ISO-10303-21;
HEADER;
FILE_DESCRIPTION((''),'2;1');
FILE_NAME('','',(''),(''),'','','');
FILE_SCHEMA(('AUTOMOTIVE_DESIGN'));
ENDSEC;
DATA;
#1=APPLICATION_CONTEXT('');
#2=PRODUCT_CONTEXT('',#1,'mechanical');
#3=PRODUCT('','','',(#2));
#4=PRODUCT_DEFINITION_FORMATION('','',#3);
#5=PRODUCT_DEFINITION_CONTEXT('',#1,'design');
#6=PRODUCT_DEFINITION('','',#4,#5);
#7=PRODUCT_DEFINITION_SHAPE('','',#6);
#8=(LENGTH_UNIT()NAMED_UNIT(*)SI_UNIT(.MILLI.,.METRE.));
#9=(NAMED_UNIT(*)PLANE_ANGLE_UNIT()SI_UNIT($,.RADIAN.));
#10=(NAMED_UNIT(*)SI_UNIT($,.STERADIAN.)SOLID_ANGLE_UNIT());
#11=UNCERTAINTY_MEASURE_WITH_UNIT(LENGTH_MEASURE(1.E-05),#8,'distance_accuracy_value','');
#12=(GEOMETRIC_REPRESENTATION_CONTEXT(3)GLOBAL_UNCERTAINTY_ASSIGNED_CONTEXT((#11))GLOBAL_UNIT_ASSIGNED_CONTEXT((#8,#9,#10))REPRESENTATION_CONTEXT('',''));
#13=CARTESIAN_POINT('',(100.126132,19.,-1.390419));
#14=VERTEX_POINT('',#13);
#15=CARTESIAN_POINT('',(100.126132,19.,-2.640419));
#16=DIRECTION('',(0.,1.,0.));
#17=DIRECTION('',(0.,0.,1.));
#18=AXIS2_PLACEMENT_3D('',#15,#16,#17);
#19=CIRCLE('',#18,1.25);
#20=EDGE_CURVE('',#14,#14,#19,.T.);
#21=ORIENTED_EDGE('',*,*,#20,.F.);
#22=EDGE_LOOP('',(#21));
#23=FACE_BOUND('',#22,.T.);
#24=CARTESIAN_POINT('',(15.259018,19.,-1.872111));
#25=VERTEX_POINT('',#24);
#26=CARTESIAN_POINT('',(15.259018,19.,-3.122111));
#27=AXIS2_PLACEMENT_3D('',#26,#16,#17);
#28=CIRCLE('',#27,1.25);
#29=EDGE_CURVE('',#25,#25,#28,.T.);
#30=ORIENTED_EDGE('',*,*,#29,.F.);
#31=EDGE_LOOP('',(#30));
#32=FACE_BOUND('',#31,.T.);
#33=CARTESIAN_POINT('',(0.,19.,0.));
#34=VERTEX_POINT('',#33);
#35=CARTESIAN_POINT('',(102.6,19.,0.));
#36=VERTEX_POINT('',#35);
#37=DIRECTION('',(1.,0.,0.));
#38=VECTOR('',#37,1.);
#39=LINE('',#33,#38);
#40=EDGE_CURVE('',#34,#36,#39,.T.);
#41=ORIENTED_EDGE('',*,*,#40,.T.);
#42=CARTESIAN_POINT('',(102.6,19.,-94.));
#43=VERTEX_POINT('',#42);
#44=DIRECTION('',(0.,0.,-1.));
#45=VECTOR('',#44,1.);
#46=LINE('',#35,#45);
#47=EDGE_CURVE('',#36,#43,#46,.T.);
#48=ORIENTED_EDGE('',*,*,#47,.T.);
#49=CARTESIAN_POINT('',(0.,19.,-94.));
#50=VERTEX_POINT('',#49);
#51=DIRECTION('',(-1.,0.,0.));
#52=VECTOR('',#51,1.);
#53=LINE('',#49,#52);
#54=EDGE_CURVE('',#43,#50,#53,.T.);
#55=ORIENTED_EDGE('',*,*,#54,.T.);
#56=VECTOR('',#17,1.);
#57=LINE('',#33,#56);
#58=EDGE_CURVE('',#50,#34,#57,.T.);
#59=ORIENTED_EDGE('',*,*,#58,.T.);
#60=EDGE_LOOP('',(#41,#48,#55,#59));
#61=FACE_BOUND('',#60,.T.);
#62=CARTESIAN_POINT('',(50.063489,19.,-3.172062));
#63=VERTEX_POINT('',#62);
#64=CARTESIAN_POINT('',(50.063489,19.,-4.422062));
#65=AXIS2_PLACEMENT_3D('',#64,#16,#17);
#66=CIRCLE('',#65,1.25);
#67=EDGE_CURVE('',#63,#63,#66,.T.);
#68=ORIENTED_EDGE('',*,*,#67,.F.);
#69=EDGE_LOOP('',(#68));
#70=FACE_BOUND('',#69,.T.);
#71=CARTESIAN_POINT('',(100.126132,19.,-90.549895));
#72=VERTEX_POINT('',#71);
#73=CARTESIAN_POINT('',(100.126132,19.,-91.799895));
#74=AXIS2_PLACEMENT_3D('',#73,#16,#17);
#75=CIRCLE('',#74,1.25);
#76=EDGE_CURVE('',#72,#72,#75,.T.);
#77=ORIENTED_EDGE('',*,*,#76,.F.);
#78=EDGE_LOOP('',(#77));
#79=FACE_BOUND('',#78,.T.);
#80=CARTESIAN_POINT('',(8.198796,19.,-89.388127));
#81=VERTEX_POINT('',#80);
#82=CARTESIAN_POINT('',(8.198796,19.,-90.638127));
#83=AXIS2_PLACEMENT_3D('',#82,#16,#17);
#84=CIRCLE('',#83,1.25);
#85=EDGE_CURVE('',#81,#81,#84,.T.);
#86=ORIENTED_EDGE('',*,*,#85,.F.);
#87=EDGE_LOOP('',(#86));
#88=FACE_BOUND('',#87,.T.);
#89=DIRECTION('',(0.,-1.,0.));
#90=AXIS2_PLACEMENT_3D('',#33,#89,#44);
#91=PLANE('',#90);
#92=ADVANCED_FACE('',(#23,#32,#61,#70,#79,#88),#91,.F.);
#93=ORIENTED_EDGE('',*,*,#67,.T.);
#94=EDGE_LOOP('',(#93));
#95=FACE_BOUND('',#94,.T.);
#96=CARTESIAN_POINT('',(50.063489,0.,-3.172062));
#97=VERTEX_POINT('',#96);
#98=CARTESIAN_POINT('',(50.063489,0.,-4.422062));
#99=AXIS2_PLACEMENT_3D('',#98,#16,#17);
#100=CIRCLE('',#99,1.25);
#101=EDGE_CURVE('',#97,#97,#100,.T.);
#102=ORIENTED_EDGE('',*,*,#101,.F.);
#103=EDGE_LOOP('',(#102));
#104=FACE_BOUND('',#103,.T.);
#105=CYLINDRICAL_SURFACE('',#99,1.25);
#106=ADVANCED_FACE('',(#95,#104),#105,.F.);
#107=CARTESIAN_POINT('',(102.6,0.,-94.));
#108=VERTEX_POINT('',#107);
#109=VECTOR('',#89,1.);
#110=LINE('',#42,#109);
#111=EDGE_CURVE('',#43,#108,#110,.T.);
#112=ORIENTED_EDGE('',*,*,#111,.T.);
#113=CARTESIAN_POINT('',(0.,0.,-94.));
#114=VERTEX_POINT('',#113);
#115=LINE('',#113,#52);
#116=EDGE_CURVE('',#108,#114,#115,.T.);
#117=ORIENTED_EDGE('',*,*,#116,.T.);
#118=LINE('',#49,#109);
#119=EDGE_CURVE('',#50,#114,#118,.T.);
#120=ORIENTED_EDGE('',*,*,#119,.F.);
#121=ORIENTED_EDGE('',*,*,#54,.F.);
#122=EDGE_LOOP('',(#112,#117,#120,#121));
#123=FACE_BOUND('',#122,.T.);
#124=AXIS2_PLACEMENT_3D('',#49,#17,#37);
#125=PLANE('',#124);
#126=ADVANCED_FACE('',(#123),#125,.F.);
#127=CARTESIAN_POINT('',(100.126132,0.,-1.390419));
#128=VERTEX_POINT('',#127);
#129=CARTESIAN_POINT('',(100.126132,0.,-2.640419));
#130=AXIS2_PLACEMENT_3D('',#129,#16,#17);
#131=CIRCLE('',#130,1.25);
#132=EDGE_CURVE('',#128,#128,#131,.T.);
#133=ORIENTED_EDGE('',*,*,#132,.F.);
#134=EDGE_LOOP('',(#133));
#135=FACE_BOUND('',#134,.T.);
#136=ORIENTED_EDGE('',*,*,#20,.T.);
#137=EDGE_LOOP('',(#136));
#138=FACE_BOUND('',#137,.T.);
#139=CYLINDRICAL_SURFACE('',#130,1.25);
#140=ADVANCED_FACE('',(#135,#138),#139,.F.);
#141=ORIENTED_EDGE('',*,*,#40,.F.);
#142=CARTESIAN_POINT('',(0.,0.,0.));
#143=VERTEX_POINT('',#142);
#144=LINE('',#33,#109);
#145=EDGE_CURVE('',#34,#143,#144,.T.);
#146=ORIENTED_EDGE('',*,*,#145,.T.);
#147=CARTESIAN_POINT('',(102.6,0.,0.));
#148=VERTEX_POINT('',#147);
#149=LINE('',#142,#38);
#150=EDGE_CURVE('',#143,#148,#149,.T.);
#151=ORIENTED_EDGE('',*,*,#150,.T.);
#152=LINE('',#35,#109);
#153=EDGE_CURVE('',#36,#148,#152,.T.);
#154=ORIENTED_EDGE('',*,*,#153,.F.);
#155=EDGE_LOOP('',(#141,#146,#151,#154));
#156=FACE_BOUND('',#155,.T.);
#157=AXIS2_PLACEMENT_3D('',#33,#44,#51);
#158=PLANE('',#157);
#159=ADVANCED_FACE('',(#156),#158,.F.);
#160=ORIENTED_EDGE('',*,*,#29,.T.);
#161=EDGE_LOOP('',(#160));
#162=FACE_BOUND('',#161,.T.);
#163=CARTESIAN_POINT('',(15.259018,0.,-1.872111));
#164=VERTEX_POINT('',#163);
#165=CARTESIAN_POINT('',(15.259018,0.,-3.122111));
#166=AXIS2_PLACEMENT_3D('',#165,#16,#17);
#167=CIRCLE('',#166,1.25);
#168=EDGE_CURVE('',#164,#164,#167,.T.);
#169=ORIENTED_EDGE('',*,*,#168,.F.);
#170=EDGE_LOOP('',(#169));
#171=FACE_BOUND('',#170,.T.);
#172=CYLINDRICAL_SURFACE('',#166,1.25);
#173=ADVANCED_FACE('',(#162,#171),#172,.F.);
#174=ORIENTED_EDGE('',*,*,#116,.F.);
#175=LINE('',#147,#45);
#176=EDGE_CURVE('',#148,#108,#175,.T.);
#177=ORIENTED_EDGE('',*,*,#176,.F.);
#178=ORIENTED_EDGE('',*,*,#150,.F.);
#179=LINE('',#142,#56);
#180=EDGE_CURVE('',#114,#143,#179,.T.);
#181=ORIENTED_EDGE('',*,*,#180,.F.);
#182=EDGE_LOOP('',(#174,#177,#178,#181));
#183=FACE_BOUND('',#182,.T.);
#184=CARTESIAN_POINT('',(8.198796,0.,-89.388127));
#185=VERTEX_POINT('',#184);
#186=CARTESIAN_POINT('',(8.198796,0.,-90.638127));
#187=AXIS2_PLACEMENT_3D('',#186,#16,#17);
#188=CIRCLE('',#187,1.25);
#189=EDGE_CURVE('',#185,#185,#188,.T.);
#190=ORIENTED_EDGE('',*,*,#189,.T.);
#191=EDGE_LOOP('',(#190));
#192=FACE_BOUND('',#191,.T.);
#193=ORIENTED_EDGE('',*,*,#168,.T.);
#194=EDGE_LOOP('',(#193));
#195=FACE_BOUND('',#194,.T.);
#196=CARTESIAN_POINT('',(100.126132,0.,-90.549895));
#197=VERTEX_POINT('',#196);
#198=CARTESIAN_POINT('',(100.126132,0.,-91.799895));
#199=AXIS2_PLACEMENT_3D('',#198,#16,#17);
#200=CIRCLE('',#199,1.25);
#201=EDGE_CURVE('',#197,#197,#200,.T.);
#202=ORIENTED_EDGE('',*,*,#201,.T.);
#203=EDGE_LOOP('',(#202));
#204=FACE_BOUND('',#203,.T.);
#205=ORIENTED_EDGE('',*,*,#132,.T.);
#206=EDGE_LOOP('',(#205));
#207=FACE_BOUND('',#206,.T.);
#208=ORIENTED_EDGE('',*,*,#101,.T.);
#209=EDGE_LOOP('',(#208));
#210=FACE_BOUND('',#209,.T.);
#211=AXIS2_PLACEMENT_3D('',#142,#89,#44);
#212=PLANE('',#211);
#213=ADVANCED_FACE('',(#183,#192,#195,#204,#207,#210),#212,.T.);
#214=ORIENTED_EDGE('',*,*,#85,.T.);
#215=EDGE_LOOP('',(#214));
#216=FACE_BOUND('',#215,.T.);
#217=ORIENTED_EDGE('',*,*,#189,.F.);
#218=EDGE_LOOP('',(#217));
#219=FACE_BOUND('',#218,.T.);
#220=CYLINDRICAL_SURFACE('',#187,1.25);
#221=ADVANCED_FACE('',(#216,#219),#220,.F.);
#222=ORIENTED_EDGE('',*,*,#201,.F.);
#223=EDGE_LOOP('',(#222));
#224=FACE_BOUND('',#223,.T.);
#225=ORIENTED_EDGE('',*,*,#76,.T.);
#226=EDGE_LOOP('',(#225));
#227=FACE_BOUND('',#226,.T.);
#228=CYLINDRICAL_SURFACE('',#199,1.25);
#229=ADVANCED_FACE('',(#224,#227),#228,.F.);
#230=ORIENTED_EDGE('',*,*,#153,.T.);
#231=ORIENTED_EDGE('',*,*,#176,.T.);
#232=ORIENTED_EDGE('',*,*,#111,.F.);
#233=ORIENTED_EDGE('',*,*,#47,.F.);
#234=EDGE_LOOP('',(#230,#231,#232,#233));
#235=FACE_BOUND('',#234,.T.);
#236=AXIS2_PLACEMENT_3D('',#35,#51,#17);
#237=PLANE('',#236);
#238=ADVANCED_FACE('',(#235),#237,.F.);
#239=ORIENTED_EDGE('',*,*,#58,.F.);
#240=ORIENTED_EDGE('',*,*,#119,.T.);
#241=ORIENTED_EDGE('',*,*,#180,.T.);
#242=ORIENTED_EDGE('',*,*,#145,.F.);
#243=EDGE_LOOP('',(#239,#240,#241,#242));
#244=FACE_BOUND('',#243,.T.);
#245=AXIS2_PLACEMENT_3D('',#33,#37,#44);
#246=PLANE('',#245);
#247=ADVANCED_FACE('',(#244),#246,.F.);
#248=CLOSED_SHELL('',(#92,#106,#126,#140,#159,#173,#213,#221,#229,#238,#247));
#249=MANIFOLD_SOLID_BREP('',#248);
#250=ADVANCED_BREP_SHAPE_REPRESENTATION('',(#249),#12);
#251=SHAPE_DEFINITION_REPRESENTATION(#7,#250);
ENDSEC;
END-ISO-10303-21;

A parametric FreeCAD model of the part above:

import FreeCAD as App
import Part
import Sketcher

V = App.Vector
Q = App.Units.Quantity


def add_polygon(sketch, points):
    """Adds a closed chain of lines whose ends are joined by coincident constraints."""
    first, n = sketch.GeometryCount, len(points)
    for a, b in zip(points, points[1:] + points[:1]):
        sketch.addGeometry(Part.LineSegment(App.Vector(*a, 0), App.Vector(*b, 0)), False)
    for i in range(n):
        sketch.addConstraint(Sketcher.Constraint("Coincident", first + i, 2, first + (i + 1) % n, 1))

doc = App.newDocument("Part")
body = doc.addObject("PartDesign::Body", "Body")

# Sketch on XZ plane
sketch1 = doc.addObject("Sketcher::SketchObject", "Sketch")
body.addObject(sketch1)
sketch1.AttachmentSupport = (doc.XZ_Plane, [""])
sketch1.MapMode = "FlatFace"
add_polygon(sketch1, [(0, -94), (0, 0), (102.6, 0), (102.6, -94)])  # lines 0-3
sketch1.addConstraint([
    Sketcher.Constraint("Vertical", 0),
    Sketcher.Constraint("Horizontal", 1),
    Sketcher.Constraint("Vertical", 2),
    Sketcher.Constraint("Horizontal", 3),
    Sketcher.Constraint("Coincident", 0, 2, -1, 1),
    Sketcher.Constraint("DistanceY", 0, 1, 0, 2, Q("94 mm")),
    Sketcher.Constraint("DistanceX", 1, 1, 1, 2, Q("102.6 mm")),
])
pad1 = doc.addObject("PartDesign::Pad", "Pad")
body.addObject(pad1)
pad1.Profile = sketch1
pad1.Length = 19
pad1.Reversed = True

# Sketch on XZ plane
sketch2 = doc.addObject("Sketcher::SketchObject", "Sketch001")
body.addObject(sketch2)
sketch2.AttachmentSupport = (doc.XZ_Plane, [""])
sketch2.MapMode = "FlatFace"
sketch2.AttachmentOffset = App.Placement(V(0, 0, -19), App.Rotation())
sketch2.addGeometry([
    Part.Circle(V(8.198796, -90.638127, 0), V(0, 0, 1), 1.25),  # 0
    Part.Circle(V(100.126132, -91.799895, 0), V(0, 0, 1), 1.25),  # 1
    Part.Circle(V(100.126132, -2.640419, 0), V(0, 0, 1), 1.25),  # 2
    Part.Circle(V(50.063489, -4.422062, 0), V(0, 0, 1), 1.25),  # 3
    Part.Circle(V(15.259018, -3.122111, 0), V(0, 0, 1), 1.25),  # 4
], False)
sketch2.addConstraint([
    Sketcher.Constraint("Equal", 0, 1),
    Sketcher.Constraint("Equal", 1, 2),
    Sketcher.Constraint("Equal", 2, 3),
    Sketcher.Constraint("Equal", 3, 4),
    Sketcher.Constraint("Vertical", 1, 3, 2, 3),
    Sketcher.Constraint("Diameter", 0, Q("2.5 mm")),
    Sketcher.Constraint("DistanceY", 2, 3, -1, 1, Q("2.640419 mm")),
    Sketcher.Constraint("DistanceX", -1, 1, 3, 3, Q("50.063489 mm")),
    Sketcher.Constraint("DistanceY", 4, 3, -1, 1, Q("3.122111 mm")),
    Sketcher.Constraint("DistanceY", 0, 3, 2, 3, Q("87.997708 mm")),
    Sketcher.Constraint("DistanceX", 4, 3, 3, 3, Q("34.804472 mm")),
    Sketcher.Constraint("DistanceY", 3, 3, 4, 3, Q("1.299951 mm")),
    Sketcher.Constraint("DistanceX", -1, 1, 0, 3, Q("8.198796 mm")),
    Sketcher.Constraint("DistanceX", -1, 1, 1, 3, Q("100.126132 mm")),
    Sketcher.Constraint("DistanceY", 1, 3, -1, 1, Q("91.799895 mm")),
])
pocket1 = doc.addObject("PartDesign::Pocket", "Pocket")
body.addObject(pocket1)
pocket1.Profile = sketch2
pocket1.Type = "ThroughAll"
pocket1.Reversed = True

doc.recompute()
